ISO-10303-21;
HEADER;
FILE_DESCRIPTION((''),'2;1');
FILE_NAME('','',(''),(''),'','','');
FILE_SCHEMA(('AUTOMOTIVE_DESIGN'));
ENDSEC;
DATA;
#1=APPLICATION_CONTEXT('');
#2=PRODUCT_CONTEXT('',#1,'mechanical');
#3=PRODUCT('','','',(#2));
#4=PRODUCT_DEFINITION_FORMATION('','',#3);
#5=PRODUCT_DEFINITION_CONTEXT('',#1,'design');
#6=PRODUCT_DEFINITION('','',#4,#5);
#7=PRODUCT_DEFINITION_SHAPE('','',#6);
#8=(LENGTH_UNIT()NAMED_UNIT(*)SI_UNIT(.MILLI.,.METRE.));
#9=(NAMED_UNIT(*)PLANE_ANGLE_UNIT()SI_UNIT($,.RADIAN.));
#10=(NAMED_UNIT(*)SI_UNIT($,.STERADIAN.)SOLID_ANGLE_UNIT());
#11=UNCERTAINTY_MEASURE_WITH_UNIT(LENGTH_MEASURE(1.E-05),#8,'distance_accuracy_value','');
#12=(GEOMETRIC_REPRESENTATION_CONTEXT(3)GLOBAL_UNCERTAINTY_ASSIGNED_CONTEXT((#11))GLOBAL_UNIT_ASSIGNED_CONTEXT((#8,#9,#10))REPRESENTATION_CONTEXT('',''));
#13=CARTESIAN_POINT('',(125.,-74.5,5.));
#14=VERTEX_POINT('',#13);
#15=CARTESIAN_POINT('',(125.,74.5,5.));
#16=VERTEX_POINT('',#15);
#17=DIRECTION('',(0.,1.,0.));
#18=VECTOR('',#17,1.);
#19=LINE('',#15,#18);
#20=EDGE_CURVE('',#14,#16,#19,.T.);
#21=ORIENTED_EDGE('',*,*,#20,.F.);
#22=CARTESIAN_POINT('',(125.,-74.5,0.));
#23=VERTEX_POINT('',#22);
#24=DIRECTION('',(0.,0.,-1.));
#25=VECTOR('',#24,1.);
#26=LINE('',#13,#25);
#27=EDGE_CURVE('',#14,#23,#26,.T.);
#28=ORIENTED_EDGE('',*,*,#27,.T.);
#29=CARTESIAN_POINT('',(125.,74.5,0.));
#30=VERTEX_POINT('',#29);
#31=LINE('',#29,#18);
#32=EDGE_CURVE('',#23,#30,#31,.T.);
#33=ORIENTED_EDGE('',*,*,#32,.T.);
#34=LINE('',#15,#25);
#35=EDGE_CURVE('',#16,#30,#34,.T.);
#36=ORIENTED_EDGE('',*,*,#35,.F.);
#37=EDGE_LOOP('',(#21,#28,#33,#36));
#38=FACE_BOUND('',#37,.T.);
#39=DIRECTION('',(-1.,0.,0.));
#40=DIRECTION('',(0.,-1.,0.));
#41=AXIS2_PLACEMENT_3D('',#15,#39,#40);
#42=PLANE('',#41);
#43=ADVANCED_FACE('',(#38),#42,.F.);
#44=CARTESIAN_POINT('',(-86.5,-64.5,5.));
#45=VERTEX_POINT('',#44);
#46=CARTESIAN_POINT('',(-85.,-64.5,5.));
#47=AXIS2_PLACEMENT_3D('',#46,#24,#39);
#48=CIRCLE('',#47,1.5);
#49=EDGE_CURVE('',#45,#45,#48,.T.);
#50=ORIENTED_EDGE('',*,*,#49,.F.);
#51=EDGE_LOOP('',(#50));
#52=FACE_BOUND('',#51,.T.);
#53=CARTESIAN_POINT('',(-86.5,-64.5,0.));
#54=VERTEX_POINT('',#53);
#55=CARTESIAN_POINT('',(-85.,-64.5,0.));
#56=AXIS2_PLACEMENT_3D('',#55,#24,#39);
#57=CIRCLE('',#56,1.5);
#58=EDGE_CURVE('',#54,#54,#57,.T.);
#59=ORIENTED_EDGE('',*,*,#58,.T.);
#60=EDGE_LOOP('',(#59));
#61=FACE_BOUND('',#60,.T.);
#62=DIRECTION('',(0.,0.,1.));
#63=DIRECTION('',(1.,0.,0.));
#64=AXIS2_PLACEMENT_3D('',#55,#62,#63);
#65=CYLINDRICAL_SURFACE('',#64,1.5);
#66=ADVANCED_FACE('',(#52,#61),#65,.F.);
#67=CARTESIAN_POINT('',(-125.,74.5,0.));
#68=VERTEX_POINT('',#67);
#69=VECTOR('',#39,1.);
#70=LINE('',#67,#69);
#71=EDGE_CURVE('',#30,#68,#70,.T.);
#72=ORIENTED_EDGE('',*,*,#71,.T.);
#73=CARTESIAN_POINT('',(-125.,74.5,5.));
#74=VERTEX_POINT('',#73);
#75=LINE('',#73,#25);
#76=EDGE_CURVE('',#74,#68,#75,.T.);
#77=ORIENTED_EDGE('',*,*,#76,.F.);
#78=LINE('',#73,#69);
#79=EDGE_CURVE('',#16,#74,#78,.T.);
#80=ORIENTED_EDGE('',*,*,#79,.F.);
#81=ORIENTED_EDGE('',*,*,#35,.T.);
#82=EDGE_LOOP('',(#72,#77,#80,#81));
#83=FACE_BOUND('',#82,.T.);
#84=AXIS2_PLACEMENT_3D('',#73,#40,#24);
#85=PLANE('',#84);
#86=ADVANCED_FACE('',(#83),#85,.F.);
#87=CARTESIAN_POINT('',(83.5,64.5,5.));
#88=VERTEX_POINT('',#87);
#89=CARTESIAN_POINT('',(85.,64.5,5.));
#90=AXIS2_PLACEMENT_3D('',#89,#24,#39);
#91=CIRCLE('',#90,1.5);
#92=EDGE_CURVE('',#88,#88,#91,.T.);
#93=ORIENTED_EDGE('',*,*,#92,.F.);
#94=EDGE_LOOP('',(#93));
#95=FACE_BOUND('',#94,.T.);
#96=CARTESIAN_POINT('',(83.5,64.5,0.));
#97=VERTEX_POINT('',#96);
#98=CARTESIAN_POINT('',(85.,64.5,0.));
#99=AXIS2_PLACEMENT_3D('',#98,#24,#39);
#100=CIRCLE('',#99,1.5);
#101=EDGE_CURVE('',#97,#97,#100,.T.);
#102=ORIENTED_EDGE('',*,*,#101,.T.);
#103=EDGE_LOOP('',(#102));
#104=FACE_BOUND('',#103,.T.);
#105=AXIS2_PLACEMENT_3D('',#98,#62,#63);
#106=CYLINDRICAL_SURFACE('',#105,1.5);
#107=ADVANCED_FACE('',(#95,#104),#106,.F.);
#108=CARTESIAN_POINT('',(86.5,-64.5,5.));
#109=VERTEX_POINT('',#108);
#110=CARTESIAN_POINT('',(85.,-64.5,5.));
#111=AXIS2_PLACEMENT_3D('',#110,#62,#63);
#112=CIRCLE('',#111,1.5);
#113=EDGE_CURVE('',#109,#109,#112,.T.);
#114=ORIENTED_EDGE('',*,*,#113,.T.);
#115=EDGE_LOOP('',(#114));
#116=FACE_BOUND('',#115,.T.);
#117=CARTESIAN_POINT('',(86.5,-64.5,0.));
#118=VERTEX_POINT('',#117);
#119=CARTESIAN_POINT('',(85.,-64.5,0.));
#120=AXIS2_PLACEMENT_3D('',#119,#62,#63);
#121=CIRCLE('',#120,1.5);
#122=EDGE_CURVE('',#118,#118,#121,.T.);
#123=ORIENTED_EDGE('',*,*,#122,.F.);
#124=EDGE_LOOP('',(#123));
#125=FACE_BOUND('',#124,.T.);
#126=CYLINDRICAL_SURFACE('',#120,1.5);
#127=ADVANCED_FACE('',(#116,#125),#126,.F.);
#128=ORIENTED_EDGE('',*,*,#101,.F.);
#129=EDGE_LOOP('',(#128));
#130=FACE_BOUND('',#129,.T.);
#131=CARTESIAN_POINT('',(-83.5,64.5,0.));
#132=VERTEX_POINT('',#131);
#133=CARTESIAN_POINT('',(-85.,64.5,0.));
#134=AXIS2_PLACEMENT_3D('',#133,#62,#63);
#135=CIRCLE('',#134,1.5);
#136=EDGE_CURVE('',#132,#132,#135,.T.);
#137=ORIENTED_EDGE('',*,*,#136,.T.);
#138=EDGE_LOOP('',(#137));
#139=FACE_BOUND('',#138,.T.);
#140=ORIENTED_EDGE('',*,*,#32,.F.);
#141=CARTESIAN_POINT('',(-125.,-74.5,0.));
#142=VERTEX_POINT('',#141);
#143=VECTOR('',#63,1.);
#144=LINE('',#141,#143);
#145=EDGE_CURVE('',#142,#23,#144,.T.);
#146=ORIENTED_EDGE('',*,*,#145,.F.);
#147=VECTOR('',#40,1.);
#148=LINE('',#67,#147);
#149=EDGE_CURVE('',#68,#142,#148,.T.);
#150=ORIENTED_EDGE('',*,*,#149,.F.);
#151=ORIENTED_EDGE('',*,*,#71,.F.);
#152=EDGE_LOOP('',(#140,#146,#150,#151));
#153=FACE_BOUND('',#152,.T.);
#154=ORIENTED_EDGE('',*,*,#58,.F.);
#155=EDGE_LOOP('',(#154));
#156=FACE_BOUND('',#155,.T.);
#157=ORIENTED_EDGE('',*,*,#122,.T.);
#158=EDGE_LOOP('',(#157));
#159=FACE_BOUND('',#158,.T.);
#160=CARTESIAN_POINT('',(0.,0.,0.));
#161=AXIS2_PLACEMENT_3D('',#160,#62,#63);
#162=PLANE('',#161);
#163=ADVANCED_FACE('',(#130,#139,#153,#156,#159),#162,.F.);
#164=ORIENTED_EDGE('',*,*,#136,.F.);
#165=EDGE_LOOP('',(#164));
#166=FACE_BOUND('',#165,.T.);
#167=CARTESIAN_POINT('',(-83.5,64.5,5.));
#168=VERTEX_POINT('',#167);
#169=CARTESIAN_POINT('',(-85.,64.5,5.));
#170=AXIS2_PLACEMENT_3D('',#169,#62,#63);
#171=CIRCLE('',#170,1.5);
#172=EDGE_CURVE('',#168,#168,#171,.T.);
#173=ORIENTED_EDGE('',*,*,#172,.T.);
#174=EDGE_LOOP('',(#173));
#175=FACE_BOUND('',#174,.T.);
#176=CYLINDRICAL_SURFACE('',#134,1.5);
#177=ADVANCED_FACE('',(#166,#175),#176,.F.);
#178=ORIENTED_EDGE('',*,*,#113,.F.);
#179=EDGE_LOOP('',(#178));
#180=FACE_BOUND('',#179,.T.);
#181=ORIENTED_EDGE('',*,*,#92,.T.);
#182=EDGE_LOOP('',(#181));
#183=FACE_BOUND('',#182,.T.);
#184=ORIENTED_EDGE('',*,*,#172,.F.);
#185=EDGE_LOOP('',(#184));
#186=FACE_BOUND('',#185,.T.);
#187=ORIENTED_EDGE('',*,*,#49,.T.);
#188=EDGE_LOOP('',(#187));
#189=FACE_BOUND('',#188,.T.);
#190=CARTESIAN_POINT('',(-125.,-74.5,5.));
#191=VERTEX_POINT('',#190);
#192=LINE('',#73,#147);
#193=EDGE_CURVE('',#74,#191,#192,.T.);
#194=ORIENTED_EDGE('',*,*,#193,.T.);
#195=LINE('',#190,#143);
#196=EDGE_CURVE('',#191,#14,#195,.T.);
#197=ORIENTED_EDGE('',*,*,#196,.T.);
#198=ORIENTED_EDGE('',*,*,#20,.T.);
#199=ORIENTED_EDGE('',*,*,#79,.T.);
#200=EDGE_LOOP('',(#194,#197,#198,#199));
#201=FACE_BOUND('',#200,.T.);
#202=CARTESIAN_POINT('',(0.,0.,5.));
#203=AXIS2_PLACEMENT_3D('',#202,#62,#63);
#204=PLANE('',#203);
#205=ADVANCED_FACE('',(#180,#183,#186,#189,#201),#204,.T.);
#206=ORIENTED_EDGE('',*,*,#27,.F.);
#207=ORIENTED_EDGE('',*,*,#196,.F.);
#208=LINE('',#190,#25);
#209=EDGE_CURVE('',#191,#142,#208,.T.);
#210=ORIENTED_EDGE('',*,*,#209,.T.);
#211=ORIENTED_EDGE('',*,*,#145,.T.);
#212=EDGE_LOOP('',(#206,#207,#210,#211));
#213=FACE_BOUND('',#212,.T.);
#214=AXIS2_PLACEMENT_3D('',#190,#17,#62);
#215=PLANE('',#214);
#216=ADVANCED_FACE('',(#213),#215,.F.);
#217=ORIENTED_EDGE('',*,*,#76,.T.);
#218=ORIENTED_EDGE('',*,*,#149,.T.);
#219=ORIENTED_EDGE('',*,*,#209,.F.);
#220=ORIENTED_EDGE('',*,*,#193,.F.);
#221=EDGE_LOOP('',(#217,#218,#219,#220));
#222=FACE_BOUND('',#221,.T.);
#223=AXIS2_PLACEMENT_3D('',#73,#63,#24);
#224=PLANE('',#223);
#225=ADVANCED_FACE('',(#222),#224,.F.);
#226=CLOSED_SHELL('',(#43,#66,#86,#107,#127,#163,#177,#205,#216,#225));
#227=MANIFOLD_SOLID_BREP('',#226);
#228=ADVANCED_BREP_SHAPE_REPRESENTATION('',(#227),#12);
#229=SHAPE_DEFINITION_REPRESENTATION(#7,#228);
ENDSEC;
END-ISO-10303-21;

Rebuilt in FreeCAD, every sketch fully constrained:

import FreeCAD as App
import Part
import Sketcher

V = App.Vector

doc = App.newDocument("Part")
body = doc.addObject("PartDesign::Body", "Body")

sketch1 = body.newObject("Sketcher::SketchObject", "Sketch")
sketch1.AttachmentSupport = (doc.getObject("XY_Plane"), [""])
sketch1.MapMode = "FlatFace"
sketch1.addGeometry([
    Part.LineSegment(V(-125, 74, 0), V(-125, -74, 0)),
    Part.LineSegment(V(-125, -74, 0), V(125, -74, 0)),
    Part.LineSegment(V(125, -74, 0), V(125, 74, 0)),
    Part.LineSegment(V(125, 74, 0), V(-125, 74, 0)),
], False)
sketch1.addConstraint([
    Sketcher.Constraint("Coincident", 0, 2, 1, 1),
    Sketcher.Constraint("Coincident", 1, 2, 2, 1),
    Sketcher.Constraint("Coincident", 2, 2, 3, 1),
    Sketcher.Constraint("Coincident", 3, 2, 0, 1),
    Sketcher.Constraint("Vertical", 0),
    Sketcher.Constraint("Horizontal", 1),
    Sketcher.Constraint("Vertical", 2),
    Sketcher.Constraint("Horizontal", 3),
    Sketcher.Constraint("Symmetric", 0, 2, 2, 2, -1, 1),
    Sketcher.Constraint("DistanceX", 1, 1, 1, 2, 250.0),
    Sketcher.Constraint("DistanceY", 0, 2, 0, 1, 149.0),
])
pad1 = body.newObject("PartDesign::Pad", "Pad")
pad1.Profile = sketch1
pad1.Length = 5

sketch2 = body.newObject("Sketcher::SketchObject", "Sketch001")
sketch2.AttachmentSupport = (doc.getObject("XY_Plane"), [""])
sketch2.MapMode = "FlatFace"
sketch2.AttachmentOffset = App.Placement(V(0, 0, 5), App.Rotation())
sketch2.addGeometry([
    Part.Circle(V(-85, 64.5, 0), V(0, 0, 1), 1.5),
    Part.Circle(V(-85, -64.5, 0), V(0, 0, 1), 1.5),
    Part.Circle(V(85, -64.5, 0), V(0, 0, 1), 1.5),
    Part.Circle(V(85, 64.5, 0), V(0, 0, 1), 1.5),
], False)
sketch2.addConstraint([
    Sketcher.Constraint("Equal", 0, 1),
    Sketcher.Constraint("Equal", 1, 2),
    Sketcher.Constraint("Equal", 2, 3),
    Sketcher.Constraint("Symmetric", 0, 3, 2, 3, -1, 1),
    Sketcher.Constraint("Symmetric", 1, 3, 3, 3, -1, 1),
    Sketcher.Constraint("Symmetric", 1, 3, 2, 3, -2),
    Sketcher.Constraint("Diameter", 0, 3.0),
    Sketcher.Constraint("DistanceX", 0, 3, -1, 1, 85.0),
    Sketcher.Constraint("DistanceY", 1, 3, 0, 3, 129.0),
])
pocket1 = body.newObject("PartDesign::Pocket", "Pocket")
pocket1.Profile = sketch2
pocket1.Length = 5

doc.recompute()
